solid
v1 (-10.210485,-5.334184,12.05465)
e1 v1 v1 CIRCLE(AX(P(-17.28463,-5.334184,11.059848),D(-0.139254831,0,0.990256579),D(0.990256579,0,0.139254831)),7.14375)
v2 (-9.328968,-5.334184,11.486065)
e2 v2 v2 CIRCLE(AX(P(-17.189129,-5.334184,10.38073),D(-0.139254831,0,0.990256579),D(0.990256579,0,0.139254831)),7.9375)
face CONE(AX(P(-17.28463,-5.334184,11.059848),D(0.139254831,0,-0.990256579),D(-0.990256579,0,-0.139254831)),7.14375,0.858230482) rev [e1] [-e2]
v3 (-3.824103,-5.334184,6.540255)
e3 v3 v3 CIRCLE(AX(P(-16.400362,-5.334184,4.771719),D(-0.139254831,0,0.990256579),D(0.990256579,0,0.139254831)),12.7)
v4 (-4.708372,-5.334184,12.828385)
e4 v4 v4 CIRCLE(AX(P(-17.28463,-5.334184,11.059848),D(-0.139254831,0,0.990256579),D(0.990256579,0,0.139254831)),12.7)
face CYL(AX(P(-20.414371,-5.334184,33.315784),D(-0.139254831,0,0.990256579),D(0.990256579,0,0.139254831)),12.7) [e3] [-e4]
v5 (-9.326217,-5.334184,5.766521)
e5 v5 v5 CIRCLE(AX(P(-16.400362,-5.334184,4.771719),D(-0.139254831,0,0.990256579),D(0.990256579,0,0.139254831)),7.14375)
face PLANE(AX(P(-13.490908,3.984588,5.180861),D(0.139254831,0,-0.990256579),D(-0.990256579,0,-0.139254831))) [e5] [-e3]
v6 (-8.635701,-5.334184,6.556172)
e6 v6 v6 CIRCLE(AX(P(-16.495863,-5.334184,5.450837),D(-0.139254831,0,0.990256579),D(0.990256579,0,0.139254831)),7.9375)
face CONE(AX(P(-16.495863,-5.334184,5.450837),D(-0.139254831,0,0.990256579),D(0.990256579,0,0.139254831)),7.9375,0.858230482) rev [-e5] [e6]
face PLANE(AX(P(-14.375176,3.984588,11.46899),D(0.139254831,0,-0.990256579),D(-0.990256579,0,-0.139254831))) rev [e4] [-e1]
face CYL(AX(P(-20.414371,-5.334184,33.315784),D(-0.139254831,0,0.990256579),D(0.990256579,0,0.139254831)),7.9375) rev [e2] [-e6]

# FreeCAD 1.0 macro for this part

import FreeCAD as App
import Part
import Sketcher
Q = App.Units.Quantity

doc = App.newDocument("Part")
params = doc.addObject("Spreadsheet::Sheet", "Params")
for row, (alias, value) in enumerate([
    ("sketch1_width", "0.25 in"),
    ("sketch1_width2", "0.196 in"),
    ("sketch1_height", "0.21875 in"),
    ("revolution_angle", "360 deg"),
], start=1):
    params.set(f"A{row}", alias)
    params.set(f"B{row}", "=" + value)
    params.setAlias(f"B{row}", alias)

body = doc.addObject("PartDesign::Body", "Body")

# Sketch on an angled plane
sketch1 = body.newObject("Sketcher::SketchObject", "Sketch")
sketch1.Placement = App.Placement(App.Vector(-20.172783, 5.286356, 55.64374), App.Rotation(App.Vector(0.139254831, 0, -0.990256579), App.Vector(0.297765141, 0.953720375, 0.041873223), App.Vector(0.944427876, -0.300694938, 0.13281017), "ZXY"))
sketch1.addGeometry([
    Part.LineSegment(App.Vector(45.237481, -19.073405, 0), App.Vector(44.551681, -18.279655, 0)),  # 0
    Part.LineSegment(App.Vector(44.551681, -18.279655, 0), App.Vector(44.551681, -23.835905, 0)),  # 1
    Part.LineSegment(App.Vector(44.551681, -23.835905, 0), App.Vector(50.901681, -23.835905, 0)),  # 2
    Part.LineSegment(App.Vector(50.901681, -23.835905, 0), App.Vector(50.901681, -18.279655, 0)),  # 3
    Part.LineSegment(App.Vector(50.901681, -18.279655, 0), App.Vector(50.215881, -19.073405, 0)),  # 4
    Part.LineSegment(App.Vector(50.215881, -19.073405, 0), App.Vector(45.237481, -19.073405, 0)),  # 5
], False)
sketch1.addGeometry(Part.LineSegment(App.Vector(44.551681, -11.135905, 0), App.Vector(50.901681, -11.135905, 0)), True)  # axis
sketch1.addConstraint([
    Sketcher.Constraint("Coincident", 0, 2, 1, 1),
    Sketcher.Constraint("Coincident", 1, 2, 2, 1),
    Sketcher.Constraint("Coincident", 2, 2, 3, 1),
    Sketcher.Constraint("Coincident", 3, 2, 4, 1),
    Sketcher.Constraint("Coincident", 4, 2, 5, 1),
    Sketcher.Constraint("Coincident", 5, 2, 0, 1),
    Sketcher.Constraint("Vertical", 1),
    Sketcher.Constraint("Horizontal", 2),
    Sketcher.Constraint("Vertical", 3),
    Sketcher.Constraint("Horizontal", 5),
    Sketcher.Constraint("Horizontal", 6),
    Sketcher.Constraint("Horizontal", 0, 2, 3, 2),
    Sketcher.Constraint("Vertical", 1, 2, 6, 1),
    Sketcher.Constraint("Vertical", 3, 2, 6, 2),
    Sketcher.Constraint("Equal", 0, 4),
    Sketcher.Constraint("DistanceX", 2, 1, 2, 2, Q("0.25 in")),
    Sketcher.Constraint("DistanceY", 1, 2, 6, 1, Q("0.5 in")),
    Sketcher.Constraint("DistanceX", 5, 2, 5, 1, Q("0.196 in")),
    Sketcher.Constraint("DistanceY", 1, 2, 1, 1, Q("0.21875 in")),
    Sketcher.Constraint("DistanceY", 4, 2, 3, 2, Q("0.03125 in")),
    Sketcher.Constraint("DistanceX", -1, 1, 0, 2, 44.551681),
    Sketcher.Constraint("DistanceY", 0, 2, -1, 1, 18.279655),
])
sketch1.setExpression("Constraints[15]", "Params.sketch1_width")
sketch1.setExpression("Constraints[17]", "Params.sketch1_width2")
sketch1.setExpression("Constraints[18]", "Params.sketch1_height")
revolution = body.newObject("PartDesign::Revolution", "Revolution")
revolution.Profile = sketch1
revolution.ReferenceAxis = (sketch1, ["Axis0"])
revolution.setExpression("Angle", "Params.revolution_angle")

doc.recompute()
